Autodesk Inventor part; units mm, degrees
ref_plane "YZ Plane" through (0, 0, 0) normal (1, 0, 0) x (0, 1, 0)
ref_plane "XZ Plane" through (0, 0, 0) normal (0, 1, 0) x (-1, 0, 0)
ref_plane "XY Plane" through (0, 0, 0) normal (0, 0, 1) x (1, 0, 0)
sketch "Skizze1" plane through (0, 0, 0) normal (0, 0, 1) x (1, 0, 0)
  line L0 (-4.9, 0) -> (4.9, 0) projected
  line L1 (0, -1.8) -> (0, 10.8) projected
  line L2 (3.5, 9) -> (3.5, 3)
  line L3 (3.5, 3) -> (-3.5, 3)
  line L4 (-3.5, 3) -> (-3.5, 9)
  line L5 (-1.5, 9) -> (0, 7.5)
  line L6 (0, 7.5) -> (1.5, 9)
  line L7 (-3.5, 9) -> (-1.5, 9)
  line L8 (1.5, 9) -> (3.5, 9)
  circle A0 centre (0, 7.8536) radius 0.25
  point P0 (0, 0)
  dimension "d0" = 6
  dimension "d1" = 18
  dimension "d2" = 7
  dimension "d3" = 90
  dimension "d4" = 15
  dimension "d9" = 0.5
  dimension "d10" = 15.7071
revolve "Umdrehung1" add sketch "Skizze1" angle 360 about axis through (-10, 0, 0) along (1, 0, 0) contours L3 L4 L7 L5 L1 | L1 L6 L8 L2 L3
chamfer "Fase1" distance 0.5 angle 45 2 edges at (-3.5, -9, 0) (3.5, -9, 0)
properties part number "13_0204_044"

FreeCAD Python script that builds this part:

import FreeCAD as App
import Part
import Sketcher
from FreeCAD import Vector
Q = App.Units.Quantity


def edges_at(feature, points):
    """Names of the edges that pass closest to the given points."""
    edges = feature.Shape.Edges
    near = lambda p: min(range(len(edges)), key=lambda i: edges[i].distToShape(Part.Vertex(*p))[0])
    return sorted({f"Edge{near(p) + 1}" for p in points})


def add_polygon(sketch, points):
    """Adds a closed chain of lines whose ends are joined by coincident constraints."""
    first, n = sketch.GeometryCount, len(points)
    for a, b in zip(points, points[1:] + points[:1]):
        sketch.addGeometry(Part.LineSegment(App.Vector(*a, 0), App.Vector(*b, 0)), False)
    for i in range(n):
        sketch.addConstraint(Sketcher.Constraint("Coincident", first + i, 2, first + (i + 1) % n, 1))

doc = App.newDocument("Part")
body = doc.addObject("PartDesign::Body", "Body")

# Sketch on XY plane
sketch1 = body.newObject("Sketcher::SketchObject", "Sketch")
sketch1.AttachmentSupport = (doc.getObject("XY_Plane"), [""])
sketch1.MapMode = "FlatFace"
add_polygon(sketch1, [(-3.5, 3), (3.5, 3), (3.5, 9), (1.5, 9), (0, 7.5), (-1.5, 9), (-3.5, 9)])  # lines 0-6
sketch1.addConstraint([
    Sketcher.Constraint("Horizontal", 0),
    Sketcher.Constraint("Vertical", 1),
    Sketcher.Constraint("Horizontal", 2),
    Sketcher.Constraint("Horizontal", 5),
    Sketcher.Constraint("Vertical", 6),
    Sketcher.Constraint("Symmetric", 2, 2, 4, 2, -2),
    Sketcher.Constraint("PointOnObject", 3, 2, -2),
    Sketcher.Constraint("Perpendicular", 3, 4),
    Sketcher.Constraint("Equal", 2, 5),
    Sketcher.Constraint("DistanceX", 0, 1, 0, 2, Q("7 mm")),
    Sketcher.Constraint("DistanceY", 1, 1, 1, 2, Q("6 mm")),
    Sketcher.Constraint("DistanceX", 2, 2, 2, 1, Q("2 mm")),
    Sketcher.Constraint("DistanceY", -1, 1, 0, 2, Q("3 mm")),
])
revolution = body.newObject("PartDesign::Revolution", "Revolution")
revolution.Profile = sketch1
revolution.ReferenceAxis = (sketch1, ["H_Axis"])
revolution.Angle = 360
doc.recompute()

chamfer = body.newObject("PartDesign::Chamfer", "Chamfer")
chamfer.Base = (revolution, edges_at(revolution, [(-3.5, -9, 0), (3.5, -9, 0)]))
chamfer.Size = 0.5

doc.recompute()
